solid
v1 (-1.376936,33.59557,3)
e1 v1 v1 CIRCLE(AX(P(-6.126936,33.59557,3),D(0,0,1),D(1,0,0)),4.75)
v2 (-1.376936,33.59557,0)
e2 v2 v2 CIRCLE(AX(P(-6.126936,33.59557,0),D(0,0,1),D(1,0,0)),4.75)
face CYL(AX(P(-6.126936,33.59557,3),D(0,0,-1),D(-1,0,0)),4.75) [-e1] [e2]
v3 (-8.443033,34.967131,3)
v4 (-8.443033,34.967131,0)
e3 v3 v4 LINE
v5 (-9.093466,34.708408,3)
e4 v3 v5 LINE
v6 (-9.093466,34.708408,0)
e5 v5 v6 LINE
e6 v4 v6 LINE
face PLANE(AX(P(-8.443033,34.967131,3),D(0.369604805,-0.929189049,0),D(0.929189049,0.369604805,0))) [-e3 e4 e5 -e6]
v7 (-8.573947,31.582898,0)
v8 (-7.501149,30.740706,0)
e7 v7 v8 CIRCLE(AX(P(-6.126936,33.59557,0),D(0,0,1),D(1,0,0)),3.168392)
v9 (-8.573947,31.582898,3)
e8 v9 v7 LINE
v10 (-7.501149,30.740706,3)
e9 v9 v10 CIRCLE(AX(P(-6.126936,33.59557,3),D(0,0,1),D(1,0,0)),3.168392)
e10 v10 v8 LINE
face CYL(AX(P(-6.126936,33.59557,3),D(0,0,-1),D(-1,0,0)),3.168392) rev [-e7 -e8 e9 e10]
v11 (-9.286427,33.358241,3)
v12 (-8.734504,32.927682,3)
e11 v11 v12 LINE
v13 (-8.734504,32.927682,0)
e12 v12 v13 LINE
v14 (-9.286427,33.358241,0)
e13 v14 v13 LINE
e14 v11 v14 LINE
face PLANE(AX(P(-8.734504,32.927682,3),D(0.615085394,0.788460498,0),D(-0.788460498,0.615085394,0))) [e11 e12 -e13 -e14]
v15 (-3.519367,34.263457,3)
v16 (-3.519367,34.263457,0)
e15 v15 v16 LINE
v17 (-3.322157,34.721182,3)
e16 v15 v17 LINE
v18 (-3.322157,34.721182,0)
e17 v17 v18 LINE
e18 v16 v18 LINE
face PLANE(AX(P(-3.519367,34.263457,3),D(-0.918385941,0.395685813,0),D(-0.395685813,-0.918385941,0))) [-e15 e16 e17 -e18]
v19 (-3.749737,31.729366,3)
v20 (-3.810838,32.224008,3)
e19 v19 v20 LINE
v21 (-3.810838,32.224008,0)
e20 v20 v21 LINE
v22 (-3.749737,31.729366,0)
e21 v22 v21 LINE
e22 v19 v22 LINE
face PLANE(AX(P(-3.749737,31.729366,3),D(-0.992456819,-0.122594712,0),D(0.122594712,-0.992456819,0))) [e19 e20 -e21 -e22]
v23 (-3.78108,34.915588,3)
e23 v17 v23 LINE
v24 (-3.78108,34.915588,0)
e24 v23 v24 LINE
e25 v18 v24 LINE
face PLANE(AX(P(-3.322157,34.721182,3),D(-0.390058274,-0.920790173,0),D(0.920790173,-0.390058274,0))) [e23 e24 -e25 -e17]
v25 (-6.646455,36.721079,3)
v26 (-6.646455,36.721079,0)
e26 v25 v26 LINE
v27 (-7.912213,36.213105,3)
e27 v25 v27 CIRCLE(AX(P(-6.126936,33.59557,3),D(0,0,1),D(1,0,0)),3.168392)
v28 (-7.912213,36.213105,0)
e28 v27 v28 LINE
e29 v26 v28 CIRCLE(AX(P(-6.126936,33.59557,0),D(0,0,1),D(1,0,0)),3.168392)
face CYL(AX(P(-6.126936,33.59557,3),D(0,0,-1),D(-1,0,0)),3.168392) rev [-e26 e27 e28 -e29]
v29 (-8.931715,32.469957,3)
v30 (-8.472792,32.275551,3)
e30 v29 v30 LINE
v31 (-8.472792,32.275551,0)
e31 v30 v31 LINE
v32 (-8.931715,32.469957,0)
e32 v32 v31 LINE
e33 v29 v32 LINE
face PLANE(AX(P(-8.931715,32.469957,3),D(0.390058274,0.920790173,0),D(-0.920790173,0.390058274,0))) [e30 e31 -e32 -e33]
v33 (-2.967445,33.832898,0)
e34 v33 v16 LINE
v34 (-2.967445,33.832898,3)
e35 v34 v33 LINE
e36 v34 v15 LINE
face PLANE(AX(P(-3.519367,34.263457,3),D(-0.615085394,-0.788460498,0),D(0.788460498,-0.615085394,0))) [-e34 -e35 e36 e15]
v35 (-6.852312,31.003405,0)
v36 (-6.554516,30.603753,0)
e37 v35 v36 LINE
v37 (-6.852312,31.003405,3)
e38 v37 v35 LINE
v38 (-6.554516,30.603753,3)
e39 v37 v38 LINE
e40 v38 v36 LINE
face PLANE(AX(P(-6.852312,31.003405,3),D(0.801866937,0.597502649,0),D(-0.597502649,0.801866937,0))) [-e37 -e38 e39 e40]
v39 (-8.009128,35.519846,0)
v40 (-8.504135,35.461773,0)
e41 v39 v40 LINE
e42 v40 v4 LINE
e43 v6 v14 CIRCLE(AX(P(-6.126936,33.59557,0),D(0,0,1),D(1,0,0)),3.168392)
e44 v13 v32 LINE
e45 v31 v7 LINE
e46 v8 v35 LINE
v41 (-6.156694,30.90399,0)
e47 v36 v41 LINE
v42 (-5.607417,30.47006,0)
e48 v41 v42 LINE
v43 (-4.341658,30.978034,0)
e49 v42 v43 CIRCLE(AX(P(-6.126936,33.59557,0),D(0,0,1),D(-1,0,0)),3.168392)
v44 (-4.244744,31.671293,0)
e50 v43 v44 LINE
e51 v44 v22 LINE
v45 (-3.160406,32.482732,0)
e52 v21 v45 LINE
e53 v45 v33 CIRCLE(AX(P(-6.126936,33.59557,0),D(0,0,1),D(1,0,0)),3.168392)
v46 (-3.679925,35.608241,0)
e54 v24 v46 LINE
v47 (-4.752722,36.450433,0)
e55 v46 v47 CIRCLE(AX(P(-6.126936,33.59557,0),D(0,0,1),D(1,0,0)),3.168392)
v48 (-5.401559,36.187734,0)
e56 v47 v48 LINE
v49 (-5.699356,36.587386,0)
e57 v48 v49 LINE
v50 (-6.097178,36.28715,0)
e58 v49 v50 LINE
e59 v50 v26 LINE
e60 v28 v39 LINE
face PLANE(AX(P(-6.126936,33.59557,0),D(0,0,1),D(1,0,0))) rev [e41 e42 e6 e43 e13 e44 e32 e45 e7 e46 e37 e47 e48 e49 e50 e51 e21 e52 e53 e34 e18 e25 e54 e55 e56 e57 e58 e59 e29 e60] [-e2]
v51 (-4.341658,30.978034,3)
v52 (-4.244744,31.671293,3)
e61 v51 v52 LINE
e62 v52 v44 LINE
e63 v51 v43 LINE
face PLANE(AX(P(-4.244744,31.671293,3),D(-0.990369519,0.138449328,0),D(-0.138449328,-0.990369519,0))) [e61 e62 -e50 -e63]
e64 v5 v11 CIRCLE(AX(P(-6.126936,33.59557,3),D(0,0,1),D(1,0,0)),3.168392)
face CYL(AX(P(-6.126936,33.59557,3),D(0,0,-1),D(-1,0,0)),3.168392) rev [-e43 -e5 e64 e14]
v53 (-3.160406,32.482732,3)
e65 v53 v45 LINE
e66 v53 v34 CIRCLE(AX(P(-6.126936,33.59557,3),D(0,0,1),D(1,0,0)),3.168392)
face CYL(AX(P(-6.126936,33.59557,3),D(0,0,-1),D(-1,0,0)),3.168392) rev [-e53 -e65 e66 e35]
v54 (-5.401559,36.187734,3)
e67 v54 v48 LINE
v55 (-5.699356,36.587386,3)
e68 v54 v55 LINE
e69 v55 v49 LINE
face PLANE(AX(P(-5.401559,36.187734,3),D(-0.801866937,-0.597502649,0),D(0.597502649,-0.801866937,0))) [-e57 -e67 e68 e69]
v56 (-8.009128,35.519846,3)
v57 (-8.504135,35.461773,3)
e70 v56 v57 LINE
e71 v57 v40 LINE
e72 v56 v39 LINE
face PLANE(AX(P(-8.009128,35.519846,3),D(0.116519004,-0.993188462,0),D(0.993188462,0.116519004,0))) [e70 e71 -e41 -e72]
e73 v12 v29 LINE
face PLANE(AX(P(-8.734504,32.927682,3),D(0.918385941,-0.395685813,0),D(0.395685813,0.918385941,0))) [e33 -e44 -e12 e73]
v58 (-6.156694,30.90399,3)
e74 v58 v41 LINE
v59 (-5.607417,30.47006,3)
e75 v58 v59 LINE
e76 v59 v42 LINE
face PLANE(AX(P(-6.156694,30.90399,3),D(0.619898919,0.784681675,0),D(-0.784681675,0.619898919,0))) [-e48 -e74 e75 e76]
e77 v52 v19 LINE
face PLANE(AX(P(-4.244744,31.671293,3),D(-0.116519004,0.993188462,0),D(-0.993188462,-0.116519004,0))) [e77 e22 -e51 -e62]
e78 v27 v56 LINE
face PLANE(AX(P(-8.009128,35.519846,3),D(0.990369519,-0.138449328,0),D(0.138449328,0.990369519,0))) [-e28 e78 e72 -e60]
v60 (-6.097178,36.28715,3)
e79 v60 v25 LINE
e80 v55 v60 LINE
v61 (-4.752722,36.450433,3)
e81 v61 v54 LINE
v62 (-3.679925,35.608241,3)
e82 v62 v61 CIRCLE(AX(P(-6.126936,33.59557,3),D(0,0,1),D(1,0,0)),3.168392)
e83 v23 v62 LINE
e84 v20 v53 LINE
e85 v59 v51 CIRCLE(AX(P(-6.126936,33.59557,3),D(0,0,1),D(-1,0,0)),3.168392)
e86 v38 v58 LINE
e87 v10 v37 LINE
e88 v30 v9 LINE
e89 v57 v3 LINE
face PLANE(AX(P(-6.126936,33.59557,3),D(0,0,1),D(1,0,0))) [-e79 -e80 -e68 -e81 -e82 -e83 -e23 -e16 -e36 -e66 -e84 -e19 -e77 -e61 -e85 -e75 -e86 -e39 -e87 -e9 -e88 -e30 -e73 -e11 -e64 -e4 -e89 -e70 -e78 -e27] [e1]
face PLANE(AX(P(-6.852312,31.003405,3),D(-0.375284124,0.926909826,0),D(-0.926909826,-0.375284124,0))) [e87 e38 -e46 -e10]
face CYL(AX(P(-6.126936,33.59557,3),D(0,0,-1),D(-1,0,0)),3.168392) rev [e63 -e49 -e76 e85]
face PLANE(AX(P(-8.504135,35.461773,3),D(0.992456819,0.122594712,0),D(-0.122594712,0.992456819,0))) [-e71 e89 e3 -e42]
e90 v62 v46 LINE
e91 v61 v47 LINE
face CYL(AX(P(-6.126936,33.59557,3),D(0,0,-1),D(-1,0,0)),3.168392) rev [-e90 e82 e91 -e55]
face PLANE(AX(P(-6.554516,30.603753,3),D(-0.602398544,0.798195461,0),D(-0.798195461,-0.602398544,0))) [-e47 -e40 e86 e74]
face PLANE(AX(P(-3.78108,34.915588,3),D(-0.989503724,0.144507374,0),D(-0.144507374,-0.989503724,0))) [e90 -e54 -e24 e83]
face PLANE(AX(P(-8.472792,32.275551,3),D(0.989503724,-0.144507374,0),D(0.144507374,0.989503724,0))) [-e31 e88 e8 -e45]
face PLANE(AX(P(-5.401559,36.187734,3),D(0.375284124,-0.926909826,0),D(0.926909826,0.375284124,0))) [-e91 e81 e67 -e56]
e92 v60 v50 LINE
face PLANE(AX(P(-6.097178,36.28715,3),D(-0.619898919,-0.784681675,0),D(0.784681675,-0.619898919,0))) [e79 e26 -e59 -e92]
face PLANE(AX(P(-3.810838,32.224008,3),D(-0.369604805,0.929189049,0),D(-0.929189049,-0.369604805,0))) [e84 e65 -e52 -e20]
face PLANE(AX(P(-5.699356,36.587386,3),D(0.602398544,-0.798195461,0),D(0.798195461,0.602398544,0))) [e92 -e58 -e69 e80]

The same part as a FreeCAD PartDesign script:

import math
import FreeCAD as App
import Part
import Sketcher

doc = App.newDocument("Part")
body = doc.addObject("PartDesign::Body", "Body")

# Sketch on XY plane
sketch1 = body.newObject("Sketcher::SketchObject", "Sketch")
sketch1.AttachmentSupport = (doc.getObject("XY_Plane"), [""])
sketch1.MapMode = "FlatFace"
sketch1.addGeometry(Part.Circle(App.Vector(-6.126936, 33.59557, 0), App.Vector(0, 0, 1), 4.75), False)
sketch1.addGeometry(Part.LineSegment(App.Vector(-5.607417, 30.47006, 0), App.Vector(-6.156694, 30.90399, 0)), False)
sketch1.addGeometry(Part.LineSegment(App.Vector(-6.156694, 30.90399, 0), App.Vector(-6.554516, 30.603753, 0)), False)
sketch1.addGeometry(Part.LineSegment(App.Vector(-6.554516, 30.603753, 0), App.Vector(-6.852312, 31.003405, 0)), False)
sketch1.addGeometry(Part.LineSegment(App.Vector(-6.852312, 31.003405, 0), App.Vector(-7.501149, 30.740706, 0)), False)
sketch1.addGeometry(Part.ArcOfCircle(Part.Circle(App.Vector(-6.126936, 33.59557, 0), App.Vector(0, 0, 1), 3.168392), math.radians(-140.562638), math.radians(-115.704241)), False)
sketch1.addGeometry(Part.LineSegment(App.Vector(-8.573947, 31.582898, 0), App.Vector(-8.472792, 32.275551, 0)), False)
sketch1.addGeometry(Part.LineSegment(App.Vector(-8.472792, 32.275551, 0), App.Vector(-8.931715, 32.469957, 0)), False)
sketch1.addGeometry(Part.LineSegment(App.Vector(-8.931715, 32.469957, 0), App.Vector(-8.734504, 32.927682, 0)), False)
sketch1.addGeometry(Part.LineSegment(App.Vector(-8.734504, 32.927682, 0), App.Vector(-9.286427, 33.358241, 0)), False)
sketch1.addGeometry(Part.ArcOfCircle(Part.Circle(App.Vector(-6.126936, 33.59557, 0), App.Vector(0, 0, 1), 3.168392), math.radians(159.437363), math.radians(184.295759)), False)
sketch1.addGeometry(Part.LineSegment(App.Vector(-9.093466, 34.708408, 0), App.Vector(-8.443033, 34.967131, 0)), False)
sketch1.addGeometry(Part.LineSegment(App.Vector(-8.443033, 34.967131, 0), App.Vector(-8.504135, 35.461773, 0)), False)
sketch1.addGeometry(Part.LineSegment(App.Vector(-8.504135, 35.461773, 0), App.Vector(-8.009128, 35.519846, 0)), False)
sketch1.addGeometry(Part.LineSegment(App.Vector(-8.009128, 35.519846, 0), App.Vector(-7.912213, 36.213105, 0)), False)
sketch1.addGeometry(Part.ArcOfCircle(Part.Circle(App.Vector(-6.126936, 33.59557, 0), App.Vector(0, 0, 1), 3.168392), math.radians(99.437362), math.radians(124.295759)), False)
sketch1.addGeometry(Part.LineSegment(App.Vector(-6.646455, 36.721079, 0), App.Vector(-6.097178, 36.28715, 0)), False)
sketch1.addGeometry(Part.LineSegment(App.Vector(-6.097178, 36.28715, 0), App.Vector(-5.699356, 36.587386, 0)), False)
sketch1.addGeometry(Part.LineSegment(App.Vector(-5.699356, 36.587386, 0), App.Vector(-5.401559, 36.187734, 0)), False)
sketch1.addGeometry(Part.LineSegment(App.Vector(-5.401559, 36.187734, 0), App.Vector(-4.752722, 36.450433, 0)), False)
sketch1.addGeometry(Part.ArcOfCircle(Part.Circle(App.Vector(-6.126936, 33.59557, 0), App.Vector(0, 0, 1), 3.168392), math.radians(39.437363), math.radians(64.295759)), False)
sketch1.addGeometry(Part.LineSegment(App.Vector(-3.679925, 35.608241, 0), App.Vector(-3.78108, 34.915588, 0)), False)
sketch1.addGeometry(Part.LineSegment(App.Vector(-3.78108, 34.915588, 0), App.Vector(-3.322157, 34.721182, 0)), False)
sketch1.addGeometry(Part.LineSegment(App.Vector(-3.322157, 34.721182, 0), App.Vector(-3.519367, 34.263457, 0)), False)
sketch1.addGeometry(Part.LineSegment(App.Vector(-3.519367, 34.263457, 0), App.Vector(-2.967445, 33.832898, 0)), False)
sketch1.addGeometry(Part.ArcOfCircle(Part.Circle(App.Vector(-6.126936, 33.59557, 0), App.Vector(0, 0, 1), 3.168392), math.radians(-20.562637), math.radians(4.295759)), False)
sketch1.addGeometry(Part.LineSegment(App.Vector(-3.160406, 32.482732, 0), App.Vector(-3.810838, 32.224008, 0)), False)
sketch1.addGeometry(Part.LineSegment(App.Vector(-3.810838, 32.224008, 0), App.Vector(-3.749737, 31.729366, 0)), False)
sketch1.addGeometry(Part.LineSegment(App.Vector(-3.749737, 31.729366, 0), App.Vector(-4.244744, 31.671293, 0)), False)
sketch1.addGeometry(Part.LineSegment(App.Vector(-4.244744, 31.671293, 0), App.Vector(-4.341658, 30.978034, 0)), False)
sketch1.addGeometry(Part.ArcOfCircle(Part.Circle(App.Vector(-6.126936, 33.59557, 0), App.Vector(0, 0, 1), 3.168392), math.radians(-80.562638), math.radians(-55.704241)), False)
sketch1.addConstraint(Sketcher.Constraint("Coincident", 1, 2, 2, 1))
sketch1.addConstraint(Sketcher.Constraint("Coincident", 2, 2, 3, 1))
sketch1.addConstraint(Sketcher.Constraint("Coincident", 3, 2, 4, 1))
sketch1.addConstraint(Sketcher.Constraint("Coincident", 4, 2, 5, 2))
sketch1.addConstraint(Sketcher.Constraint("Coincident", 5, 1, 6, 1))
sketch1.addConstraint(Sketcher.Constraint("Coincident", 6, 2, 7, 1))
sketch1.addConstraint(Sketcher.Constraint("Coincident", 7, 2, 8, 1))
sketch1.addConstraint(Sketcher.Constraint("Coincident", 8, 2, 9, 1))
sketch1.addConstraint(Sketcher.Constraint("Coincident", 9, 2, 10, 2))
sketch1.addConstraint(Sketcher.Constraint("Coincident", 10, 1, 11, 1))
sketch1.addConstraint(Sketcher.Constraint("Coincident", 11, 2, 12, 1))
sketch1.addConstraint(Sketcher.Constraint("Coincident", 12, 2, 13, 1))
sketch1.addConstraint(Sketcher.Constraint("Coincident", 13, 2, 14, 1))
sketch1.addConstraint(Sketcher.Constraint("Coincident", 14, 2, 15, 2))
sketch1.addConstraint(Sketcher.Constraint("Coincident", 15, 1, 16, 1))
sketch1.addConstraint(Sketcher.Constraint("Coincident", 16, 2, 17, 1))
sketch1.addConstraint(Sketcher.Constraint("Coincident", 17, 2, 18, 1))
sketch1.addConstraint(Sketcher.Constraint("Coincident", 18, 2, 19, 1))
sketch1.addConstraint(Sketcher.Constraint("Coincident", 19, 2, 20, 2))
sketch1.addConstraint(Sketcher.Constraint("Coincident", 20, 1, 21, 1))
sketch1.addConstraint(Sketcher.Constraint("Coincident", 21, 2, 22, 1))
sketch1.addConstraint(Sketcher.Constraint("Coincident", 22, 2, 23, 1))
sketch1.addConstraint(Sketcher.Constraint("Coincident", 23, 2, 24, 1))
sketch1.addConstraint(Sketcher.Constraint("Coincident", 24, 2, 25, 2))
sketch1.addConstraint(Sketcher.Constraint("Coincident", 25, 1, 26, 1))
sketch1.addConstraint(Sketcher.Constraint("Coincident", 26, 2, 27, 1))
sketch1.addConstraint(Sketcher.Constraint("Coincident", 27, 2, 28, 1))
sketch1.addConstraint(Sketcher.Constraint("Coincident", 28, 2, 29, 1))
sketch1.addConstraint(Sketcher.Constraint("Coincident", 29, 2, 30, 2))
sketch1.addConstraint(Sketcher.Constraint("Coincident", 30, 1, 1, 1))
sketch1.addConstraint(Sketcher.Constraint("Coincident", 5, 3, 0, 3))
sketch1.addConstraint(Sketcher.Constraint("Coincident", 10, 3, 0, 3))
sketch1.addConstraint(Sketcher.Constraint("Coincident", 15, 3, 0, 3))
sketch1.addConstraint(Sketcher.Constraint("Coincident", 20, 3, 0, 3))
sketch1.addConstraint(Sketcher.Constraint("Coincident", 25, 3, 0, 3))
sketch1.addConstraint(Sketcher.Constraint("Coincident", 30, 3, 0, 3))
sketch1.addConstraint(Sketcher.Constraint("Equal", 5, 10))
sketch1.addConstraint(Sketcher.Constraint("Equal", 10, 15))
sketch1.addConstraint(Sketcher.Constraint("Equal", 15, 20))
sketch1.addConstraint(Sketcher.Constraint("Equal", 20, 25))
sketch1.addConstraint(Sketcher.Constraint("Equal", 25, 30))
sketch1.addConstraint(Sketcher.Constraint("Parallel", 1, 16))
sketch1.addConstraint(Sketcher.Constraint("Parallel", 2, 17))
sketch1.addConstraint(Sketcher.Constraint("Parallel", 3, 18))
sketch1.addConstraint(Sketcher.Constraint("Parallel", 4, 19))
sketch1.addConstraint(Sketcher.Constraint("Parallel", 6, 21))
sketch1.addConstraint(Sketcher.Constraint("Parallel", 7, 22))
sketch1.addConstraint(Sketcher.Constraint("Parallel", 8, 23))
sketch1.addConstraint(Sketcher.Constraint("Parallel", 9, 24))
sketch1.addConstraint(Sketcher.Constraint("Parallel", 11, 26))
sketch1.addConstraint(Sketcher.Constraint("Parallel", 12, 27))
sketch1.addConstraint(Sketcher.Constraint("Parallel", 13, 28))
sketch1.addConstraint(Sketcher.Constraint("Parallel", 14, 29))
sketch1.addConstraint(Sketcher.Constraint("Equal", 2, 3))
sketch1.addConstraint(Sketcher.Constraint("Equal", 1, 4))
sketch1.addConstraint(Sketcher.Constraint("Equal", 4, 6))
sketch1.addConstraint(Sketcher.Constraint("Equal", 3, 7))
sketch1.addConstraint(Sketcher.Constraint("Equal", 7, 8))
sketch1.addConstraint(Sketcher.Constraint("Equal", 6, 9))
sketch1.addConstraint(Sketcher.Constraint("Equal", 9, 11))
sketch1.addConstraint(Sketcher.Constraint("Equal", 8, 12))
sketch1.addConstraint(Sketcher.Constraint("Equal", 12, 13))
sketch1.addConstraint(Sketcher.Constraint("Equal", 11, 14))
sketch1.addConstraint(Sketcher.Constraint("Equal", 14, 16))
sketch1.addConstraint(Sketcher.Constraint("Equal", 13, 17))
sketch1.addConstraint(Sketcher.Constraint("Equal", 17, 18))
sketch1.addConstraint(Sketcher.Constraint("Equal", 16, 19))
sketch1.addConstraint(Sketcher.Constraint("Equal", 19, 21))
sketch1.addConstraint(Sketcher.Constraint("Equal", 18, 22))
sketch1.addConstraint(Sketcher.Constraint("Equal", 22, 23))
sketch1.addConstraint(Sketcher.Constraint("Equal", 21, 24))
sketch1.addConstraint(Sketcher.Constraint("Equal", 24, 26))
sketch1.addConstraint(Sketcher.Constraint("Equal", 23, 27))
sketch1.addConstraint(Sketcher.Constraint("Equal", 27, 28))
sketch1.addConstraint(Sketcher.Constraint("Equal", 26, 29))
sketch1.addConstraint(Sketcher.Constraint("Diameter", 0, 9.5))
sketch1.addConstraint(Sketcher.Constraint("Distance", 1, 0.7))
sketch1.addConstraint(Sketcher.Constraint("Radius", 5, 3.168392))
sketch1.addConstraint(Sketcher.Constraint("Distance", 2, 0.498402))
sketch1.addConstraint(Sketcher.Constraint("DistanceY", -1, 1, 5, 1, 31.582898))
sketch1.addConstraint(Sketcher.Constraint("DistanceY", 4, 2, 3, 2, 0.262699))
sketch1.addConstraint(Sketcher.Constraint("DistanceX", 12, 2, 11, 2, 0.061101))
sketch1.addConstraint(Sketcher.Constraint("DistanceX", 12, 2, 25, 3, 2.377199))
sketch1.addConstraint(Sketcher.Constraint("DistanceX", 9, 2, 13, 2, 1.277299))
sketch1.addConstraint(Sketcher.Constraint("DistanceX", 15, 1, 17, 2, 0.947099))
sketch1.addConstraint(Sketcher.Constraint("DistanceY", -1, 1, 0, 3, 33.59557))
sketch1.addConstraint(Sketcher.Constraint("DistanceY", -1, 1, 1, 2, 30.90399))
sketch1.addConstraint(Sketcher.Constraint("DistanceX", 4, 2, -1, 1, 7.501149))
sketch1.addConstraint(Sketcher.Constraint("DistanceX", 6, 2, -1, 1, 8.472792))
sketch1.addConstraint(Sketcher.Constraint("DistanceY", -1, 1, 6, 2, 32.275551))
sketch1.addConstraint(Sketcher.Constraint("DistanceY", -1, 1, 8, 2, 32.927682))
sketch1.addConstraint(Sketcher.Constraint("DistanceY", -1, 1, 9, 2, 33.358241))
sketch1.addConstraint(Sketcher.Constraint("DistanceY", -1, 1, 11, 2, 34.967131))
pad1 = body.newObject("PartDesign::Pad", "Pad")
pad1.Profile = sketch1
pad1.Length = 3

doc.recompute()
